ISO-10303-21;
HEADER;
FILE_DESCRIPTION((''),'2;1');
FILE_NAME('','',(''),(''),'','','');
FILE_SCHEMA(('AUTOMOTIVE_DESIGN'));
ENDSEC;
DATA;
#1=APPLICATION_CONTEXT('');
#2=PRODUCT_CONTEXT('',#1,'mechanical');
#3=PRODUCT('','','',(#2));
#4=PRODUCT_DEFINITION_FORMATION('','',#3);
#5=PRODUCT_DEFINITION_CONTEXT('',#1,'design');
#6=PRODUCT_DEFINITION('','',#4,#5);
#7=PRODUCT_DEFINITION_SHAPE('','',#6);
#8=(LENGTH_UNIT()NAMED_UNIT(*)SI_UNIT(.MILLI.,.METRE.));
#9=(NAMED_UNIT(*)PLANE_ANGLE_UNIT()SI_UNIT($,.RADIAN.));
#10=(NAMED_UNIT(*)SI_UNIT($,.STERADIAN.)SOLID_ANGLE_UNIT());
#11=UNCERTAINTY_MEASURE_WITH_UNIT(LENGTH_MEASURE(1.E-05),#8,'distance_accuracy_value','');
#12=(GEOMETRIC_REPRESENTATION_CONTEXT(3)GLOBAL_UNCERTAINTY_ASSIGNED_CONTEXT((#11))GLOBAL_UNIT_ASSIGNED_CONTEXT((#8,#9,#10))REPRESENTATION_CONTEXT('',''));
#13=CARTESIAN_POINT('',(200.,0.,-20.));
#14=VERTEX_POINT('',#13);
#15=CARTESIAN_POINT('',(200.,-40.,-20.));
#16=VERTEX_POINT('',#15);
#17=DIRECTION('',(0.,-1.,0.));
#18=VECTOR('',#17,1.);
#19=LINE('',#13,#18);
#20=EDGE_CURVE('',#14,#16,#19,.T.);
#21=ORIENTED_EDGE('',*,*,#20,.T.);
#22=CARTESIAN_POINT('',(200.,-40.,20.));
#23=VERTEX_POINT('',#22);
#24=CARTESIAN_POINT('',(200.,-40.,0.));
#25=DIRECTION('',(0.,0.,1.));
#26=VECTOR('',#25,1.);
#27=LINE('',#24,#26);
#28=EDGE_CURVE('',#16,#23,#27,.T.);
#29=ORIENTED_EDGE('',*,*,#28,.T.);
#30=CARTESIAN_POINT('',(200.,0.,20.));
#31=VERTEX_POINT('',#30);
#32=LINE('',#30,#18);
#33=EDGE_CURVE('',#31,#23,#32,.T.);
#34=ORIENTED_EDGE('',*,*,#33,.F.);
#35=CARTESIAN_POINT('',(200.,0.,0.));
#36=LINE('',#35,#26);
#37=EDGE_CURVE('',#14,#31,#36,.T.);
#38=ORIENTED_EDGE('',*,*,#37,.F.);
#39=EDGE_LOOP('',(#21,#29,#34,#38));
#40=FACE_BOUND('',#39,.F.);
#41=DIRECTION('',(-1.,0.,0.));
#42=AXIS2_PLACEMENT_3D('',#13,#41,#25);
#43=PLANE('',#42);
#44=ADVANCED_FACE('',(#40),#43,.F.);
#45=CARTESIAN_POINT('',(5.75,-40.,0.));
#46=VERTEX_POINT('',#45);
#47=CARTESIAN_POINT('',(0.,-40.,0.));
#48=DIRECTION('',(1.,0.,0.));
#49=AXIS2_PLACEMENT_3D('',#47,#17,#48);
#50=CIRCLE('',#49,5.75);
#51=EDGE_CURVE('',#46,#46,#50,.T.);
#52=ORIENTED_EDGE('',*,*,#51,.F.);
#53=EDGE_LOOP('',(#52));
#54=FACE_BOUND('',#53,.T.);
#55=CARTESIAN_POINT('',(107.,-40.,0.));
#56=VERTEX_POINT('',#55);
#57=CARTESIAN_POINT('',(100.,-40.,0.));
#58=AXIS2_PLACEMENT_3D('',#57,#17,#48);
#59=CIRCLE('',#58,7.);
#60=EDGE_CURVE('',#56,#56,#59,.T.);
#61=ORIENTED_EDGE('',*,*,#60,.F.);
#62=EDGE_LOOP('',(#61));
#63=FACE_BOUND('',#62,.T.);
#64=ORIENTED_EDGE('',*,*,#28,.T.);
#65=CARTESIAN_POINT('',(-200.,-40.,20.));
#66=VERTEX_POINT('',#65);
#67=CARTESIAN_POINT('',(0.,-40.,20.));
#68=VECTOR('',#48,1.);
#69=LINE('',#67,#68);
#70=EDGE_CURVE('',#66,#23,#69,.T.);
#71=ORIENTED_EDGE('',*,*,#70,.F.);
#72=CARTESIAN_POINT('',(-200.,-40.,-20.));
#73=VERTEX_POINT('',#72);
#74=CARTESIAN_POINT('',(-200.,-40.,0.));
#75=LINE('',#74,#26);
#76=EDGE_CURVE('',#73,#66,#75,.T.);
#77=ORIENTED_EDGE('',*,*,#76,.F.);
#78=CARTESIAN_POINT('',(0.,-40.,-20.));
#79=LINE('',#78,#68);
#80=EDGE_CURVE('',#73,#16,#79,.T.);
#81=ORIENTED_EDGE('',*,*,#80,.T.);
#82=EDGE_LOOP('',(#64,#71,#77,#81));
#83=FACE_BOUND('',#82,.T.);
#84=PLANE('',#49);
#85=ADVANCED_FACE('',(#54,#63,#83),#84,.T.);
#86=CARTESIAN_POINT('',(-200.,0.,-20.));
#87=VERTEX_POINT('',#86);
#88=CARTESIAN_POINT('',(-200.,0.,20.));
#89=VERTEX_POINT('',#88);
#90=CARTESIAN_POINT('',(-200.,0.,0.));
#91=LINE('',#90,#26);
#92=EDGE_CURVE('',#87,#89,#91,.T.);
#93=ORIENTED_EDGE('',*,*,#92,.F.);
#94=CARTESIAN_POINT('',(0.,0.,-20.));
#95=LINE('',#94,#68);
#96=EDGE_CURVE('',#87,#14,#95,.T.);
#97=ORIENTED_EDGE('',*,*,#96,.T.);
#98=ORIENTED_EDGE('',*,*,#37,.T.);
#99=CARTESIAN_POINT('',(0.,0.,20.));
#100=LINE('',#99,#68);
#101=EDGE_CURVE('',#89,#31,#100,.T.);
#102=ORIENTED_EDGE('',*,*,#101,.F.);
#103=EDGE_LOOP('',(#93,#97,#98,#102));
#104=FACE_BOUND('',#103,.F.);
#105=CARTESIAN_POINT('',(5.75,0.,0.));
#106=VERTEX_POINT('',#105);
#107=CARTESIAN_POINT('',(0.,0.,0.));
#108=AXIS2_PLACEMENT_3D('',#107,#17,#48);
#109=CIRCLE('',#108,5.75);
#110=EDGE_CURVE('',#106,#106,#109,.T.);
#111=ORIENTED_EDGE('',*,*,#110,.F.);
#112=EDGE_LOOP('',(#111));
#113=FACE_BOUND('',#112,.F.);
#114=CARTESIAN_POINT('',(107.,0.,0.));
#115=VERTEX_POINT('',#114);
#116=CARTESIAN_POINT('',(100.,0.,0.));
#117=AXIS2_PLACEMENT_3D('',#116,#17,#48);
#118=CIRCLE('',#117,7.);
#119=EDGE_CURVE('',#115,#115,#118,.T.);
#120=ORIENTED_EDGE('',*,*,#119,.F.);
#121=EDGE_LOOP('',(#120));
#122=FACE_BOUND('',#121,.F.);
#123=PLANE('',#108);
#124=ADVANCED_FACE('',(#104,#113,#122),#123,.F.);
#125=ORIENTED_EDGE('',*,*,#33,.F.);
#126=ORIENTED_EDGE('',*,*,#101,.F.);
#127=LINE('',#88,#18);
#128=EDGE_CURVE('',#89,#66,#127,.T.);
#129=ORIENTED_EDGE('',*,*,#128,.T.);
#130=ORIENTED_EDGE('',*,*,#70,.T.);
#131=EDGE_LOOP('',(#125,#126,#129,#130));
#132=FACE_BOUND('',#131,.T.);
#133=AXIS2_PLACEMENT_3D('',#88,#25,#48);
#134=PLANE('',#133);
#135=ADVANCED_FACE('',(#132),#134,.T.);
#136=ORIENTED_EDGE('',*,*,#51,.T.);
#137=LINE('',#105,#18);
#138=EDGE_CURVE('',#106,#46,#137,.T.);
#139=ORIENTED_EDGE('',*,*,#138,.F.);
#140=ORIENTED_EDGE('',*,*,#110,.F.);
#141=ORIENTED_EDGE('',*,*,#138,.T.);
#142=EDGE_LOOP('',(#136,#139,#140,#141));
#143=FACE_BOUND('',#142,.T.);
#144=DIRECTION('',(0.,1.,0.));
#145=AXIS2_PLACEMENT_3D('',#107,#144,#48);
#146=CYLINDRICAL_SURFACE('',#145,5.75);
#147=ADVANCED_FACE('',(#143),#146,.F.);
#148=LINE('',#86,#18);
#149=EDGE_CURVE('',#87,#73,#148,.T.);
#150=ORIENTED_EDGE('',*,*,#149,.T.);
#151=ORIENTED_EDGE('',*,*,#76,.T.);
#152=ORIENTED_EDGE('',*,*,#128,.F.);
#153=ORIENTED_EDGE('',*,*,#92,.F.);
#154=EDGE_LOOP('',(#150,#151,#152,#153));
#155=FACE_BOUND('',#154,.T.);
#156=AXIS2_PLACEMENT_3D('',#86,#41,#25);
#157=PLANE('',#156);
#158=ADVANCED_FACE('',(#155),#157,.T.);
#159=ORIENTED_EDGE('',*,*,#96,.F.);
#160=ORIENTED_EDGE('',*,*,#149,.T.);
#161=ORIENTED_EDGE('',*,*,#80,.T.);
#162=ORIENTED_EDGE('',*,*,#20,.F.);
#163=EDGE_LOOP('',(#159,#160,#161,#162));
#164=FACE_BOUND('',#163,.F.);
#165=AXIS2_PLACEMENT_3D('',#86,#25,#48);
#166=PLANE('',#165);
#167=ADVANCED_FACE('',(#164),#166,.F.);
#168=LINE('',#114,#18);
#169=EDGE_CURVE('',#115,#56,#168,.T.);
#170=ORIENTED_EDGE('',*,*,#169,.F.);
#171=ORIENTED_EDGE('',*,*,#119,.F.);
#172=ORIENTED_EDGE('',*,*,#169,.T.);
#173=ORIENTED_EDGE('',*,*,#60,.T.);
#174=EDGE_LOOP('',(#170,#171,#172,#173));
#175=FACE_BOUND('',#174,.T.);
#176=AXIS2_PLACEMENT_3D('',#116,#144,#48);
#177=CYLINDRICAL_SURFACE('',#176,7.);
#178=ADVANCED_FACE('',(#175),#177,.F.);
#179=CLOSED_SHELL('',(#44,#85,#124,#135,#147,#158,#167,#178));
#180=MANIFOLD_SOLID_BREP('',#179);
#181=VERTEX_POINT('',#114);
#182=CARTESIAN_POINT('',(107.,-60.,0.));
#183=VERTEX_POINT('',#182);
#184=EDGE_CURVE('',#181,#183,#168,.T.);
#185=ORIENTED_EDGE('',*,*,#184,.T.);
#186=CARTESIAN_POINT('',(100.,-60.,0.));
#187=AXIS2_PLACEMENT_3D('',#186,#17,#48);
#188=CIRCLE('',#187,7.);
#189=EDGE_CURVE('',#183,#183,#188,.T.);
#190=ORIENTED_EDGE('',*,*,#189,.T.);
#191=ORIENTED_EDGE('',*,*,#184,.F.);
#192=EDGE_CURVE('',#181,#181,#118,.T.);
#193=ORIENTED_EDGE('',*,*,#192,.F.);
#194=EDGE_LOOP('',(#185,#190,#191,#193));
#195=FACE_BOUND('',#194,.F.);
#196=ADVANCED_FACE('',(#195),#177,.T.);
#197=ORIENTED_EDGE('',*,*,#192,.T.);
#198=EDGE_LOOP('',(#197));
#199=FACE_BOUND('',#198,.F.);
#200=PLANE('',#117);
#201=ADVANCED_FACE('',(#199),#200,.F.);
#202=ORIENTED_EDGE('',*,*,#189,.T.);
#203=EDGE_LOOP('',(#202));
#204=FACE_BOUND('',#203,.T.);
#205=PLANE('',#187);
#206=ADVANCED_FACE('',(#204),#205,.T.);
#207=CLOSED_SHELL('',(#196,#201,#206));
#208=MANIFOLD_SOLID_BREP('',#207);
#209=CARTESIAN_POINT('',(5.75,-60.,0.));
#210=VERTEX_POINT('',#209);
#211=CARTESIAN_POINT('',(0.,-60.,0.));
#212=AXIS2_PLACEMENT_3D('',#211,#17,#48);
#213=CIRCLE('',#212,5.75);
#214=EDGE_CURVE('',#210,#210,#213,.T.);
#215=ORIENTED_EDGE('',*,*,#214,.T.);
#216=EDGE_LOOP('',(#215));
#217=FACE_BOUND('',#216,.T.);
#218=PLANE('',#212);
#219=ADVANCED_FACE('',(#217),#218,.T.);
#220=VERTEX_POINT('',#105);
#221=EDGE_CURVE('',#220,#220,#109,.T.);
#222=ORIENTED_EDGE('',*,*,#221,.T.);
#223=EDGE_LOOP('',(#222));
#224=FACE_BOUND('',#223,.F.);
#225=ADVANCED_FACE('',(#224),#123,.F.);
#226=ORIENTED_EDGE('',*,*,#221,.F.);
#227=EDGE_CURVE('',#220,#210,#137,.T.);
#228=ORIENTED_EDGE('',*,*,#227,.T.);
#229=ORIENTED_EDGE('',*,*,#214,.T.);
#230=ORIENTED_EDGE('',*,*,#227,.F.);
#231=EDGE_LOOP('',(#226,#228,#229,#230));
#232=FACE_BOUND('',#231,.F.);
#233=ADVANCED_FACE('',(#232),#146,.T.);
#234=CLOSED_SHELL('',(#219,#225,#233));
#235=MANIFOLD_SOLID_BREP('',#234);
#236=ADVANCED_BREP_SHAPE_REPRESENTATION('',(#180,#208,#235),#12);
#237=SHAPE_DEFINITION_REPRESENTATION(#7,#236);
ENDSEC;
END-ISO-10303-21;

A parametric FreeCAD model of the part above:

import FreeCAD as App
import Part
import Sketcher

doc = App.newDocument("Part")
params = doc.addObject("Spreadsheet::Sheet", "Params")
for row, (alias, value) in enumerate([
    ("sketch1_diameter", "14 mm"),
    ("sketch1_diameter2", "11.5 mm"),
    ("pad1_length", "60 mm"),
    ("sketch2_diameter", "14 mm"),
    ("sketch2_diameter2", "11.5 mm"),
    ("sketch2_width", "400 mm"),
    ("sketch2_height", "40 mm"),
    ("pad2_length", "40 mm"),
], start=1):
    params.set(f"A{row}", alias)
    params.set(f"B{row}", "=" + value)
    params.setAlias(f"B{row}", alias)

body = doc.addObject("PartDesign::Body", "Body")
body.AllowCompound = True

# Sketch on XZ plane
sketch1 = body.newObject("Sketcher::SketchObject", "Sketch")
sketch1.AttachmentSupport = (doc.getObject("XZ_Plane"), [""])
sketch1.MapMode = "FlatFace"
sketch1.addGeometry(Part.Circle(App.Vector(0, 0, 0), App.Vector(0, 0, 1), 5.75), False)
sketch1.addGeometry(Part.Circle(App.Vector(100, 0, 0), App.Vector(0, 0, 1), 7), False)
sketch1.addConstraint(Sketcher.Constraint("Coincident", 0, 3, -1, 1))
sketch1.addConstraint(Sketcher.Constraint("PointOnObject", 1, 3, -1))
sketch1.addConstraint(Sketcher.Constraint("Diameter", 1, 14.0))
sketch1.addConstraint(Sketcher.Constraint("Diameter", 0, 11.5))
sketch1.addConstraint(Sketcher.Constraint("DistanceX", -1, 1, 1, 3, 100.0))
sketch1.setExpression("Constraints[2]", "Params.sketch1_diameter")
sketch1.setExpression("Constraints[3]", "Params.sketch1_diameter2")
pad1 = body.newObject("PartDesign::Pad", "Pad")
pad1.Profile = sketch1
pad1.setExpression("Length", "Params.pad1_length")
body2 = doc.addObject("PartDesign::Body", "Body001")

# Sketch on XZ plane
sketch2 = body2.newObject("Sketcher::SketchObject", "Sketch001")
sketch2.AttachmentSupport = (doc.getObject("XZ_Plane001"), [""])
sketch2.MapMode = "FlatFace"
sketch2.addGeometry(Part.LineSegment(App.Vector(-200, 20, 0), App.Vector(-200, -20, 0)), False)
sketch2.addGeometry(Part.LineSegment(App.Vector(-200, -20, 0), App.Vector(200, -20, 0)), False)
sketch2.addGeometry(Part.LineSegment(App.Vector(200, -20, 0), App.Vector(200, 20, 0)), False)
sketch2.addGeometry(Part.LineSegment(App.Vector(200, 20, 0), App.Vector(-200, 20, 0)), False)
sketch2.addGeometry(Part.Circle(App.Vector(0, 0, 0), App.Vector(0, 0, 1), 5.75), False)
sketch2.addGeometry(Part.Circle(App.Vector(100, 0, 0), App.Vector(0, 0, 1), 7), False)
sketch2.addConstraint(Sketcher.Constraint("Coincident", 0, 2, 1, 1))
sketch2.addConstraint(Sketcher.Constraint("Coincident", 1, 2, 2, 1))
sketch2.addConstraint(Sketcher.Constraint("Coincident", 2, 2, 3, 1))
sketch2.addConstraint(Sketcher.Constraint("Coincident", 3, 2, 0, 1))
sketch2.addConstraint(Sketcher.Constraint("Vertical", 0))
sketch2.addConstraint(Sketcher.Constraint("Horizontal", 1))
sketch2.addConstraint(Sketcher.Constraint("Vertical", 2))
sketch2.addConstraint(Sketcher.Constraint("Horizontal", 3))
sketch2.addConstraint(Sketcher.Constraint("Coincident", 4, 3, -1, 1))
sketch2.addConstraint(Sketcher.Constraint("Symmetric", 0, 2, 2, 2, -1, 1))
sketch2.addConstraint(Sketcher.Constraint("PointOnObject", 5, 3, -1))
sketch2.addConstraint(Sketcher.Constraint("Diameter", 5, 14.0))
sketch2.addConstraint(Sketcher.Constraint("Diameter", 4, 11.5))
sketch2.addConstraint(Sketcher.Constraint("DistanceX", 1, 1, 1, 2, 400.0))
sketch2.addConstraint(Sketcher.Constraint("DistanceY", 0, 2, 0, 1, 40.0))
sketch2.addConstraint(Sketcher.Constraint("DistanceX", -1, 1, 5, 3, 100.0))
sketch2.setExpression("Constraints[11]", "Params.sketch2_diameter")
sketch2.setExpression("Constraints[12]", "Params.sketch2_diameter2")
sketch2.setExpression("Constraints[13]", "Params.sketch2_width")
sketch2.setExpression("Constraints[14]", "Params.sketch2_height")
pad2 = body2.newObject("PartDesign::Pad", "Pad001")
pad2.Profile = sketch2
pad2.setExpression("Length", "Params.pad2_length")

doc.recompute()
